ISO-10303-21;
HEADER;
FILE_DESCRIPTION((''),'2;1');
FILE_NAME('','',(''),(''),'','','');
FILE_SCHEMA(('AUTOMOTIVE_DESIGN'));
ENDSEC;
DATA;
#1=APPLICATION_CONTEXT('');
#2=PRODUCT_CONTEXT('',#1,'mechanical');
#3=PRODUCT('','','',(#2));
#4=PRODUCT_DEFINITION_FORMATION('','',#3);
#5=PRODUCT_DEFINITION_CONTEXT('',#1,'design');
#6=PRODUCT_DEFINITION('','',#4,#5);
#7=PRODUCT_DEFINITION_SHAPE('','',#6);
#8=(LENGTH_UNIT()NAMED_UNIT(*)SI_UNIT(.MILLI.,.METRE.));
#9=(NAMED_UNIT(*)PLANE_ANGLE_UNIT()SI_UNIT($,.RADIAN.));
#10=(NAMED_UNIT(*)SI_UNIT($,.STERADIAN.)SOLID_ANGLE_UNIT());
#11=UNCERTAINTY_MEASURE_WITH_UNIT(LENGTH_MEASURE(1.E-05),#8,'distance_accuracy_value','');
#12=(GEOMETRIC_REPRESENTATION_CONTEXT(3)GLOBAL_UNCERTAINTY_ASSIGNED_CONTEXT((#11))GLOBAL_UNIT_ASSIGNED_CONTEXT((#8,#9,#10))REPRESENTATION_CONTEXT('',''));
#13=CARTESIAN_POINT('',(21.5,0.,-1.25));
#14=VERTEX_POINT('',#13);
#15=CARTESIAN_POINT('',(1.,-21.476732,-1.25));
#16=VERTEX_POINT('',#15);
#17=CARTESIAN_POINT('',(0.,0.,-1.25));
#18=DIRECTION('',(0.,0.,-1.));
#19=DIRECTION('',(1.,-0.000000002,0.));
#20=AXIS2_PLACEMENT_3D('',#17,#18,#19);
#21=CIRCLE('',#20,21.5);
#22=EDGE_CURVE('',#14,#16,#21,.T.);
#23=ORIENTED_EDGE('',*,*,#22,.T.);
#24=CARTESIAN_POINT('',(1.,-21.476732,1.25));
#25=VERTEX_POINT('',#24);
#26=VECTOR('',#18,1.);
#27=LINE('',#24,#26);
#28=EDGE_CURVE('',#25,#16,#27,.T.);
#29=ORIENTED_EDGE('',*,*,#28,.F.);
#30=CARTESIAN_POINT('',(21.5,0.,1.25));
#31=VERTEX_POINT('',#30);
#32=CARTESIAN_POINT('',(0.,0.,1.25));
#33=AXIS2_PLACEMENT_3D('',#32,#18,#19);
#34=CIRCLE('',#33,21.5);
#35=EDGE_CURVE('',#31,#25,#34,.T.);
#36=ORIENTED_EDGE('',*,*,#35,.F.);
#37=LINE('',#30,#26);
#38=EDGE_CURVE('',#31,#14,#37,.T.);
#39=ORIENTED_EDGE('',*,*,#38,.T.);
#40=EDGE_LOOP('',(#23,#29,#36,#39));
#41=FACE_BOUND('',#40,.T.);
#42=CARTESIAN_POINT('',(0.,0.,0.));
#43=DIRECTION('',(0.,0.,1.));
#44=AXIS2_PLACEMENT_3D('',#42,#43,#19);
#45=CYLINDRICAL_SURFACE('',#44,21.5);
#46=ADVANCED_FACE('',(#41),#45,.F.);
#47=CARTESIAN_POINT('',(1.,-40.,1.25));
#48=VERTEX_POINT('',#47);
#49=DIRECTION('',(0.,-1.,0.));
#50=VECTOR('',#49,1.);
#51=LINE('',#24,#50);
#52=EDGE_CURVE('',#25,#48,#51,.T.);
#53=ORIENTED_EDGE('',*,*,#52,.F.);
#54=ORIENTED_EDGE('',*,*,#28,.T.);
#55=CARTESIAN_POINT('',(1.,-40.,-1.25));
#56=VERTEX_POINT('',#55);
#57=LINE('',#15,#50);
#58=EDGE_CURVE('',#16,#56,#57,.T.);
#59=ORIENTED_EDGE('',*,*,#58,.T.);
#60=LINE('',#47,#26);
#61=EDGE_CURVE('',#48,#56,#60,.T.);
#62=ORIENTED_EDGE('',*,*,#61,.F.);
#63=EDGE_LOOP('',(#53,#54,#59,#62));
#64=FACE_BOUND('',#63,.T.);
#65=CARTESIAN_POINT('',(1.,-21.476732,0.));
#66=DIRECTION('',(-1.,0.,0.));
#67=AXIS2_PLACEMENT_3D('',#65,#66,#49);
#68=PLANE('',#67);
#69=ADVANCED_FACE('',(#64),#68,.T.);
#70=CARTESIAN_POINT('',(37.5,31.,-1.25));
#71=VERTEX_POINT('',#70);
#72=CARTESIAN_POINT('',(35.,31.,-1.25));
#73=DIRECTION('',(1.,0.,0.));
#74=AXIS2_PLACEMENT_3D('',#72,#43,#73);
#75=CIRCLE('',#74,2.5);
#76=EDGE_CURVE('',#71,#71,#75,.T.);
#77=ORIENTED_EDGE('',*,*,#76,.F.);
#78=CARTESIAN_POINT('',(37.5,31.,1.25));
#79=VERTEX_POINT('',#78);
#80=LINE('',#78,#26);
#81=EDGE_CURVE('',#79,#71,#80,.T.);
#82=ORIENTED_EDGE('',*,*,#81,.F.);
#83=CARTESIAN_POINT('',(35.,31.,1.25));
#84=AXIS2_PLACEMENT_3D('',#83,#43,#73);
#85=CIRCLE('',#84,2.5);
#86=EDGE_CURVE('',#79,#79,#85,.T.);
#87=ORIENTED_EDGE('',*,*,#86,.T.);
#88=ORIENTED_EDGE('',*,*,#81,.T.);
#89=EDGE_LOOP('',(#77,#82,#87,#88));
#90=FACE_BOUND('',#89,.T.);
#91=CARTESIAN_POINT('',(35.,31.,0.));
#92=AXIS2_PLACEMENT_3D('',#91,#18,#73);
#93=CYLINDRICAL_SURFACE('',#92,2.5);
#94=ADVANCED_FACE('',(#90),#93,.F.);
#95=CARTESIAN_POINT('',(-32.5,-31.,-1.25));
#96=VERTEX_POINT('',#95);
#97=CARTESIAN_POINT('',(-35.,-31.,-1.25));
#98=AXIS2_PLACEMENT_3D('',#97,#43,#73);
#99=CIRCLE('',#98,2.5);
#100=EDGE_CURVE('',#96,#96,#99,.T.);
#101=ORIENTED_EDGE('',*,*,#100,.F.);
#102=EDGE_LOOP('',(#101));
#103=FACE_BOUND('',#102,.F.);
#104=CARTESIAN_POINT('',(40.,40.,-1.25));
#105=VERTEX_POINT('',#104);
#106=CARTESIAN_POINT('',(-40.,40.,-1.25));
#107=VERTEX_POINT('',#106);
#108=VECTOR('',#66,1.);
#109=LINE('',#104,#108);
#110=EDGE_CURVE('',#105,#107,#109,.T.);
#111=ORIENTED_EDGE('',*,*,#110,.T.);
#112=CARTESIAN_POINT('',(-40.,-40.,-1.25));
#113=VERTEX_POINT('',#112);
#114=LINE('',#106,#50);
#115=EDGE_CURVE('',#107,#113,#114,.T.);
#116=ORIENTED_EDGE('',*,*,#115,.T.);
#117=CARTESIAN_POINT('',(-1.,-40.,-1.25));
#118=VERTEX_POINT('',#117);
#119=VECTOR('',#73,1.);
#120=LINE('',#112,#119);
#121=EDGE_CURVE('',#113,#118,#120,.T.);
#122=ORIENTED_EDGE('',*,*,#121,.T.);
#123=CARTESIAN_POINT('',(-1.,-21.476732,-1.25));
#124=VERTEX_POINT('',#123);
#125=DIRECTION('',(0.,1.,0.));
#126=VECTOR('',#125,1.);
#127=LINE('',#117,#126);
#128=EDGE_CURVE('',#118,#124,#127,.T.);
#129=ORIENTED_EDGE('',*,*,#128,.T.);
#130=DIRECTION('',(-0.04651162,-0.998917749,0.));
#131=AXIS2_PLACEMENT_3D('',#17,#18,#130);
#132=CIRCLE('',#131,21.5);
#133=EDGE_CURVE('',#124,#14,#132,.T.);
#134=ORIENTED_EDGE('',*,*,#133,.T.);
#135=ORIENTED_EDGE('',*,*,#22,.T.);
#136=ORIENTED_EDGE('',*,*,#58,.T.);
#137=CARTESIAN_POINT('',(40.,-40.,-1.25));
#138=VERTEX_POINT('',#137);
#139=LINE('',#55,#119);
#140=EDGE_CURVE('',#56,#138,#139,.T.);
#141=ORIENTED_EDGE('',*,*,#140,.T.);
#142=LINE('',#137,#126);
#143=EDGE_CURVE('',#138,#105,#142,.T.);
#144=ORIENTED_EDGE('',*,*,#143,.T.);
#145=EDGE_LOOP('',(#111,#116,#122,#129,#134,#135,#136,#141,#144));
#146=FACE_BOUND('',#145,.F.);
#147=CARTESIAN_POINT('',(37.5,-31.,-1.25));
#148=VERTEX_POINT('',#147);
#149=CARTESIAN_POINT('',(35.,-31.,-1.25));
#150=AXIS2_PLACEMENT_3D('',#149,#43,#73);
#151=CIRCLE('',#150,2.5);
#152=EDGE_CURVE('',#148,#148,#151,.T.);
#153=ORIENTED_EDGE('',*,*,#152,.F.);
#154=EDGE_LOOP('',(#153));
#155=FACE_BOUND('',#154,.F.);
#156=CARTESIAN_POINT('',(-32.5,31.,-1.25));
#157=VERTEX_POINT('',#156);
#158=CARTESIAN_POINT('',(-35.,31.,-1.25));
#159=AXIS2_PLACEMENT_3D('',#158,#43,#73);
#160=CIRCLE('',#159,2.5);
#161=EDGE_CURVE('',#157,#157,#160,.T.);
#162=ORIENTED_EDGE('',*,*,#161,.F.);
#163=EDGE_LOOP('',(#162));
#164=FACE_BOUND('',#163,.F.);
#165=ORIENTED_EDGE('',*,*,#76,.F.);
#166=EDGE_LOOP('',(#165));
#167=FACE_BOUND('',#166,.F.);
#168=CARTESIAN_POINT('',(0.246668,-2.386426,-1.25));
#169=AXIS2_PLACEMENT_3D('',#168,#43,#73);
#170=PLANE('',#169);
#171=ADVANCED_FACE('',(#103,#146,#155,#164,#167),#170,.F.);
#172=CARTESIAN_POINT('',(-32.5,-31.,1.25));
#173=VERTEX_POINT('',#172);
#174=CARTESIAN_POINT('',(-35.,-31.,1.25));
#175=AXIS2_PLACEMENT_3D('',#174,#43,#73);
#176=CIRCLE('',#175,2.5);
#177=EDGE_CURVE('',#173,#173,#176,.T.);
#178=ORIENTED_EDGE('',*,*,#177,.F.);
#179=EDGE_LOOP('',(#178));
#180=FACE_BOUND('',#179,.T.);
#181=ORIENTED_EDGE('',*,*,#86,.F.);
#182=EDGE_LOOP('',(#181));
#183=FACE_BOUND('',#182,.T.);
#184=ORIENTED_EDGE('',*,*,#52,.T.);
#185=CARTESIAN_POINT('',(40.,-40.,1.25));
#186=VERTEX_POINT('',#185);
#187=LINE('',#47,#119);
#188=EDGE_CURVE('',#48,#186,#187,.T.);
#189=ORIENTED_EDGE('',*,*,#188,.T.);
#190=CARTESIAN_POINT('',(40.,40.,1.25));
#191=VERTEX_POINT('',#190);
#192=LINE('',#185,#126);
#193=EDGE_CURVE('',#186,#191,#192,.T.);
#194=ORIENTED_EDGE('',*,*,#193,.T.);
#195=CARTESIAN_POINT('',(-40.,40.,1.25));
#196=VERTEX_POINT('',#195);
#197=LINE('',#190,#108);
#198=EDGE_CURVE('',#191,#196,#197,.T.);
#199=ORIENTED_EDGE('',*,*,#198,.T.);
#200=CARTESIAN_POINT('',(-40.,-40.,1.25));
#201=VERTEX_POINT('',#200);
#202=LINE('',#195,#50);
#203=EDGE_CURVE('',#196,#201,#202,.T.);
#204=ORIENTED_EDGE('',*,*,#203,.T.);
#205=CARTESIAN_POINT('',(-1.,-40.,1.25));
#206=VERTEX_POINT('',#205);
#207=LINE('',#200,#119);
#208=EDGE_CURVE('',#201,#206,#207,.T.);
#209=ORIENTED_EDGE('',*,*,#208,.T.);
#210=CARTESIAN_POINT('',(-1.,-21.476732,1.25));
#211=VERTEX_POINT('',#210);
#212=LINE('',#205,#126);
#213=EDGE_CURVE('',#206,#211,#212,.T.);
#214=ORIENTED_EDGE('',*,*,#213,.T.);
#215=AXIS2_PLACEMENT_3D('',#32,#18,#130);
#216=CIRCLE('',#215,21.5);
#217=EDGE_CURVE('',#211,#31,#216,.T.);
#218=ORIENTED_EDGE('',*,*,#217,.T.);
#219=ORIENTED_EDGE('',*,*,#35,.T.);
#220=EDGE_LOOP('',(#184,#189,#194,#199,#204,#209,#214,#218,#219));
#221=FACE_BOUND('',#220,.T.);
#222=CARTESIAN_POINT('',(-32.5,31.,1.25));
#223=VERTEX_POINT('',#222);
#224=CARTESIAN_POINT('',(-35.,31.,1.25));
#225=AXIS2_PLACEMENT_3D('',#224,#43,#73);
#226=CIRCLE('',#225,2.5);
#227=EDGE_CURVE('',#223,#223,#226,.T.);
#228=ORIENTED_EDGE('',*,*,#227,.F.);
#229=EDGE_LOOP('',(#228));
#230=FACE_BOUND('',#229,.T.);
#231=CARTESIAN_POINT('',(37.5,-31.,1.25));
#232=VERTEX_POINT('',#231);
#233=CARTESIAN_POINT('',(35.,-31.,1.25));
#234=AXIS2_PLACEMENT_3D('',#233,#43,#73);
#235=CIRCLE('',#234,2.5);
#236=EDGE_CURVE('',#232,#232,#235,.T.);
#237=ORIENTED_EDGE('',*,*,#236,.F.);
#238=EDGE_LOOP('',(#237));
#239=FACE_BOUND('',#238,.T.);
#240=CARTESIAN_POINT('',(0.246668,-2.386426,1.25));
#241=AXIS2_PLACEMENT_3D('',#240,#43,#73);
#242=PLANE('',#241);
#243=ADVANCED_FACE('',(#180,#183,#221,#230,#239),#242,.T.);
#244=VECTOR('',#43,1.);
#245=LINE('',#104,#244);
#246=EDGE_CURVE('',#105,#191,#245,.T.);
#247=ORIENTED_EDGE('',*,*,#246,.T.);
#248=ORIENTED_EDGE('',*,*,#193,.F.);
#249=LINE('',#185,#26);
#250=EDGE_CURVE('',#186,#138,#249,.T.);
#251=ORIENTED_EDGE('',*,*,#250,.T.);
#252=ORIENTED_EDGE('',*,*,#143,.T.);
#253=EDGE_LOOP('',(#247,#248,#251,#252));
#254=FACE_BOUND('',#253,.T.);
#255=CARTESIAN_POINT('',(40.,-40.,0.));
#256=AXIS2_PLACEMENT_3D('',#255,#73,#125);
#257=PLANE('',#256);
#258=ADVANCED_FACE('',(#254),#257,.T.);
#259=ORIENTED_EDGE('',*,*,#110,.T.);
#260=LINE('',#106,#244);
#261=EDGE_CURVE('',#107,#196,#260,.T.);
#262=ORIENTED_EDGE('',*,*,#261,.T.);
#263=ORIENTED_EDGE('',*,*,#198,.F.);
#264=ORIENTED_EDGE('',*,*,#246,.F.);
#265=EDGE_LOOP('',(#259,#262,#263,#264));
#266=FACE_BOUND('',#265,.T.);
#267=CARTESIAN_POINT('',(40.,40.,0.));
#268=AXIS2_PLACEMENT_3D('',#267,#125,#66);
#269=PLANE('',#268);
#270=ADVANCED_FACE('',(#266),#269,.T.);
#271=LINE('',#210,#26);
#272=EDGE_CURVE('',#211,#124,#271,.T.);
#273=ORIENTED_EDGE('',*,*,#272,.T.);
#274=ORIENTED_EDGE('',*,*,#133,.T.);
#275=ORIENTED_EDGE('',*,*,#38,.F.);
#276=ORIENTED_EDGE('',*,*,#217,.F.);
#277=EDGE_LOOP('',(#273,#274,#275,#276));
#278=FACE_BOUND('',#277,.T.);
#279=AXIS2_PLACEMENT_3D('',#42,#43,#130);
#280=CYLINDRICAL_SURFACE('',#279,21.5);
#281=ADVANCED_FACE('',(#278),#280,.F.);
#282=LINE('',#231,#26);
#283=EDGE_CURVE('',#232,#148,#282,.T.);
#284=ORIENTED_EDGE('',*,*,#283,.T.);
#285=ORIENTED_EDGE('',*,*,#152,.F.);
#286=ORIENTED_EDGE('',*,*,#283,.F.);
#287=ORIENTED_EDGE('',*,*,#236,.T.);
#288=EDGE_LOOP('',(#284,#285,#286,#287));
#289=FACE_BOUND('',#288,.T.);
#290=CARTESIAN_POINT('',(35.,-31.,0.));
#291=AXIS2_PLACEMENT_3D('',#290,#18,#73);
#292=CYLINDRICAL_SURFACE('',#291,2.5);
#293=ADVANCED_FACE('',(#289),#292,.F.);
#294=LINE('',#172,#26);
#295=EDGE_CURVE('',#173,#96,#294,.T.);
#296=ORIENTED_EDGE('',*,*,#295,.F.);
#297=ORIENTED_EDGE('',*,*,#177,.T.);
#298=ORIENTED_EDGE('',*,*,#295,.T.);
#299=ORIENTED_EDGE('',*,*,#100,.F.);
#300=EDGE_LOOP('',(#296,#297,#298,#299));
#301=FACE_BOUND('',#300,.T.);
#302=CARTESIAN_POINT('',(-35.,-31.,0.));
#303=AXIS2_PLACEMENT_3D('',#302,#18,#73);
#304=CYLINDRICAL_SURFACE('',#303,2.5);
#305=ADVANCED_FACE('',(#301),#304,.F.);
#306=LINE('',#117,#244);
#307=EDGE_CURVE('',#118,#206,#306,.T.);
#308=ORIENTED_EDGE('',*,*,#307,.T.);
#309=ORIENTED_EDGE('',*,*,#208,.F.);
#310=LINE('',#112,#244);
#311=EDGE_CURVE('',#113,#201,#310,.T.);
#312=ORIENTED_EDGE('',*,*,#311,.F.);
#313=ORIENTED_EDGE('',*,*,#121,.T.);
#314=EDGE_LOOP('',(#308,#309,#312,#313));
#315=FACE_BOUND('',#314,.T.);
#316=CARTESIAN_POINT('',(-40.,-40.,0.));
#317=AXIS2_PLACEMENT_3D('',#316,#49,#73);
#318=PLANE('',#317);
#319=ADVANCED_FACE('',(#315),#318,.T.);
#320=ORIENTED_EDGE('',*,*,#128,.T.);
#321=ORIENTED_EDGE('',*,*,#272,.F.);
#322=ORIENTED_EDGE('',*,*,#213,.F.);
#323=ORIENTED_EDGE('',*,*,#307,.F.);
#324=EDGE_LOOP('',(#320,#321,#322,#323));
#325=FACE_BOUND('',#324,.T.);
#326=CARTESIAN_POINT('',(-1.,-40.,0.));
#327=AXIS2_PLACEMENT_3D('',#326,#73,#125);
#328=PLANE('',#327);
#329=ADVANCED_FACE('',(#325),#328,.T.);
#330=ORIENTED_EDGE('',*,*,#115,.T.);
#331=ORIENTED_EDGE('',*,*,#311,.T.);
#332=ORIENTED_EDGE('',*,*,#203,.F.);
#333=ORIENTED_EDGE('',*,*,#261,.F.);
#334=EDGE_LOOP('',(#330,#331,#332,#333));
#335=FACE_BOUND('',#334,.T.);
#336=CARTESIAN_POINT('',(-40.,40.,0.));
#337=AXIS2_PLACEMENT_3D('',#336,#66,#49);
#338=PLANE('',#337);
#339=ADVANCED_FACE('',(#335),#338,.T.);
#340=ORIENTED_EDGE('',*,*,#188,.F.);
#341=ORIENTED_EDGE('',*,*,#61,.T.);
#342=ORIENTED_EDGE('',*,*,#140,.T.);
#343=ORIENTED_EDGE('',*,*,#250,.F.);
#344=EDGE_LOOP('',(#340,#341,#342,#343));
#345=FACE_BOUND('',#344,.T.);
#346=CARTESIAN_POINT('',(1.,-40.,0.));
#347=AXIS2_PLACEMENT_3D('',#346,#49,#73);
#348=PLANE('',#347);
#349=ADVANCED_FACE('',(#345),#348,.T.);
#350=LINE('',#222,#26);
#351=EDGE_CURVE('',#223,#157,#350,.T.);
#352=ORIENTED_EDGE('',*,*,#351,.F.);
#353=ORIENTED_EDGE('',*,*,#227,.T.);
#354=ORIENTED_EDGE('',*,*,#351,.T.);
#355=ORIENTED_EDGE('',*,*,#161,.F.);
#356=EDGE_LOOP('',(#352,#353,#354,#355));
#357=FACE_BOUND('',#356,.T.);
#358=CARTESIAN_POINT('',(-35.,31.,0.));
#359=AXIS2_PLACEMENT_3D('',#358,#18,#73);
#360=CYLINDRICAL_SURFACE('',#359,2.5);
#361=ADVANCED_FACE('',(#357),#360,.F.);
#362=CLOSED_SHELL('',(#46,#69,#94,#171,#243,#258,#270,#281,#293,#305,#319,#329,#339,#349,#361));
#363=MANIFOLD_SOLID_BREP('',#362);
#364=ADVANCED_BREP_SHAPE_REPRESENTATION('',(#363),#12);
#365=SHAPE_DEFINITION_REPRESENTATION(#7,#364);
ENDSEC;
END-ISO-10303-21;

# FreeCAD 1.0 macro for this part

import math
import FreeCAD as App
import Part
import Sketcher
from FreeCAD import Vector
Q = App.Units.Quantity

doc = App.newDocument("Part")
body = doc.addObject("PartDesign::Body", "Body")

sketch1 = body.newObject("Sketcher::SketchObject", "Sketch")
sketch1.AttachmentSupport = (doc.getObject("XY_Plane"), [""])
sketch1.MapMode = "FlatFace"
sketch1.addGeometry(Part.LineSegment(Vector(40, -40, 0), Vector(40, 40, 0)), False)
sketch1.addGeometry(Part.LineSegment(Vector(40, 40, 0), Vector(-40, 40, 0)), False)
sketch1.addGeometry(Part.LineSegment(Vector(-40, 40, 0), Vector(-40, -40, 0)), False)
sketch1.addGeometry(Part.LineSegment(Vector(-40, -40, 0), Vector(-1, -40, 0)), False)
sketch1.addGeometry(Part.LineSegment(Vector(-1, -40, 0), Vector(-1, -21.5, 0)), False)
sketch1.addGeometry(Part.ArcOfCircle(Part.Circle(Vector(0, 0, 0), Vector(0, 0, 1), 21.5), math.radians(0), math.radians(267)), False)
sketch1.addGeometry(Part.ArcOfCircle(Part.Circle(Vector(0, 0, 0), Vector(0, 0, 1), 21.5), math.radians(-87), math.radians(0)), False)
sketch1.addGeometry(Part.LineSegment(Vector(1, -21.5, 0), Vector(1, -40, 0)), False)
sketch1.addGeometry(Part.LineSegment(Vector(1, -40, 0), Vector(40, -40, 0)), False)
sketch1.addGeometry(Part.Circle(Vector(-35, -31, 0), Vector(0, 0, 1), 2.5), False)
sketch1.addGeometry(Part.Circle(Vector(35, -31, 0), Vector(0, 0, 1), 2.5), False)
sketch1.addGeometry(Part.Circle(Vector(-35, 31, 0), Vector(0, 0, 1), 2.5), False)
sketch1.addGeometry(Part.Circle(Vector(35, 31, 0), Vector(0, 0, 1), 2.5), False)
sketch1.addConstraint(Sketcher.Constraint("Coincident", 0, 2, 1, 1))
sketch1.addConstraint(Sketcher.Constraint("Coincident", 1, 2, 2, 1))
sketch1.addConstraint(Sketcher.Constraint("Coincident", 2, 2, 3, 1))
sketch1.addConstraint(Sketcher.Constraint("Coincident", 3, 2, 4, 1))
sketch1.addConstraint(Sketcher.Constraint("Coincident", 4, 2, 5, 2))
sketch1.addConstraint(Sketcher.Constraint("Tangent", 5, 1, 6, 2))
sketch1.addConstraint(Sketcher.Constraint("Coincident", 6, 1, 7, 1))
sketch1.addConstraint(Sketcher.Constraint("Coincident", 7, 2, 8, 1))
sketch1.addConstraint(Sketcher.Constraint("Coincident", 8, 2, 0, 1))
sketch1.addConstraint(Sketcher.Constraint("Vertical", 0))
sketch1.addConstraint(Sketcher.Constraint("Horizontal", 1))
sketch1.addConstraint(Sketcher.Constraint("Vertical", 2))
sketch1.addConstraint(Sketcher.Constraint("Horizontal", 3))
sketch1.addConstraint(Sketcher.Constraint("Vertical", 4))
sketch1.addConstraint(Sketcher.Constraint("Vertical", 7))
sketch1.addConstraint(Sketcher.Constraint("Horizontal", 8))
sketch1.addConstraint(Sketcher.Constraint("Coincident", 5, 3, -1, 1))
sketch1.addConstraint(Sketcher.Constraint("Equal", 5, 6))
sketch1.addConstraint(Sketcher.Constraint("Equal", 9, 10))
sketch1.addConstraint(Sketcher.Constraint("Equal", 10, 11))
sketch1.addConstraint(Sketcher.Constraint("Equal", 11, 12))
sketch1.addConstraint(Sketcher.Constraint("Symmetric", 10, 3, 11, 3, -1, 1))
sketch1.addConstraint(Sketcher.Constraint("Symmetric", 9, 3, 12, 3, -1, 1))
sketch1.addConstraint(Sketcher.Constraint("Symmetric", 0, 2, 2, 2, -1, 1))
sketch1.addConstraint(Sketcher.Constraint("Symmetric", 9, 3, 10, 3, -2))
sketch1.addConstraint(Sketcher.Constraint("Symmetric", 3, 2, 7, 2, -2))
sketch1.addConstraint(Sketcher.Constraint("PointOnObject", 5, 1, -1))
sketch1.addConstraint(Sketcher.Constraint("Equal", 1, 0))
sketch1.addConstraint(Sketcher.Constraint("Diameter", 9, Q("5 mm")))
sketch1.addConstraint(Sketcher.Constraint("Radius", 5, Q("21.5 mm")))
sketch1.addConstraint(Sketcher.Constraint("DistanceX", 1, 2, 1, 1, Q("80 mm")))
sketch1.addConstraint(Sketcher.Constraint("DistanceX", 3, 1, 3, 2, Q("39 mm")))
sketch1.addConstraint(Sketcher.Constraint("DistanceX", 9, 3, -1, 1, Q("35 mm")))
sketch1.addConstraint(Sketcher.Constraint("DistanceY", 9, 3, -1, 1, Q("31 mm")))
pad1 = body.newObject("PartDesign::Pad", "Pad")
pad1.Profile = sketch1
pad1.Length = 2.5
pad1.Midplane = True

doc.recompute()
